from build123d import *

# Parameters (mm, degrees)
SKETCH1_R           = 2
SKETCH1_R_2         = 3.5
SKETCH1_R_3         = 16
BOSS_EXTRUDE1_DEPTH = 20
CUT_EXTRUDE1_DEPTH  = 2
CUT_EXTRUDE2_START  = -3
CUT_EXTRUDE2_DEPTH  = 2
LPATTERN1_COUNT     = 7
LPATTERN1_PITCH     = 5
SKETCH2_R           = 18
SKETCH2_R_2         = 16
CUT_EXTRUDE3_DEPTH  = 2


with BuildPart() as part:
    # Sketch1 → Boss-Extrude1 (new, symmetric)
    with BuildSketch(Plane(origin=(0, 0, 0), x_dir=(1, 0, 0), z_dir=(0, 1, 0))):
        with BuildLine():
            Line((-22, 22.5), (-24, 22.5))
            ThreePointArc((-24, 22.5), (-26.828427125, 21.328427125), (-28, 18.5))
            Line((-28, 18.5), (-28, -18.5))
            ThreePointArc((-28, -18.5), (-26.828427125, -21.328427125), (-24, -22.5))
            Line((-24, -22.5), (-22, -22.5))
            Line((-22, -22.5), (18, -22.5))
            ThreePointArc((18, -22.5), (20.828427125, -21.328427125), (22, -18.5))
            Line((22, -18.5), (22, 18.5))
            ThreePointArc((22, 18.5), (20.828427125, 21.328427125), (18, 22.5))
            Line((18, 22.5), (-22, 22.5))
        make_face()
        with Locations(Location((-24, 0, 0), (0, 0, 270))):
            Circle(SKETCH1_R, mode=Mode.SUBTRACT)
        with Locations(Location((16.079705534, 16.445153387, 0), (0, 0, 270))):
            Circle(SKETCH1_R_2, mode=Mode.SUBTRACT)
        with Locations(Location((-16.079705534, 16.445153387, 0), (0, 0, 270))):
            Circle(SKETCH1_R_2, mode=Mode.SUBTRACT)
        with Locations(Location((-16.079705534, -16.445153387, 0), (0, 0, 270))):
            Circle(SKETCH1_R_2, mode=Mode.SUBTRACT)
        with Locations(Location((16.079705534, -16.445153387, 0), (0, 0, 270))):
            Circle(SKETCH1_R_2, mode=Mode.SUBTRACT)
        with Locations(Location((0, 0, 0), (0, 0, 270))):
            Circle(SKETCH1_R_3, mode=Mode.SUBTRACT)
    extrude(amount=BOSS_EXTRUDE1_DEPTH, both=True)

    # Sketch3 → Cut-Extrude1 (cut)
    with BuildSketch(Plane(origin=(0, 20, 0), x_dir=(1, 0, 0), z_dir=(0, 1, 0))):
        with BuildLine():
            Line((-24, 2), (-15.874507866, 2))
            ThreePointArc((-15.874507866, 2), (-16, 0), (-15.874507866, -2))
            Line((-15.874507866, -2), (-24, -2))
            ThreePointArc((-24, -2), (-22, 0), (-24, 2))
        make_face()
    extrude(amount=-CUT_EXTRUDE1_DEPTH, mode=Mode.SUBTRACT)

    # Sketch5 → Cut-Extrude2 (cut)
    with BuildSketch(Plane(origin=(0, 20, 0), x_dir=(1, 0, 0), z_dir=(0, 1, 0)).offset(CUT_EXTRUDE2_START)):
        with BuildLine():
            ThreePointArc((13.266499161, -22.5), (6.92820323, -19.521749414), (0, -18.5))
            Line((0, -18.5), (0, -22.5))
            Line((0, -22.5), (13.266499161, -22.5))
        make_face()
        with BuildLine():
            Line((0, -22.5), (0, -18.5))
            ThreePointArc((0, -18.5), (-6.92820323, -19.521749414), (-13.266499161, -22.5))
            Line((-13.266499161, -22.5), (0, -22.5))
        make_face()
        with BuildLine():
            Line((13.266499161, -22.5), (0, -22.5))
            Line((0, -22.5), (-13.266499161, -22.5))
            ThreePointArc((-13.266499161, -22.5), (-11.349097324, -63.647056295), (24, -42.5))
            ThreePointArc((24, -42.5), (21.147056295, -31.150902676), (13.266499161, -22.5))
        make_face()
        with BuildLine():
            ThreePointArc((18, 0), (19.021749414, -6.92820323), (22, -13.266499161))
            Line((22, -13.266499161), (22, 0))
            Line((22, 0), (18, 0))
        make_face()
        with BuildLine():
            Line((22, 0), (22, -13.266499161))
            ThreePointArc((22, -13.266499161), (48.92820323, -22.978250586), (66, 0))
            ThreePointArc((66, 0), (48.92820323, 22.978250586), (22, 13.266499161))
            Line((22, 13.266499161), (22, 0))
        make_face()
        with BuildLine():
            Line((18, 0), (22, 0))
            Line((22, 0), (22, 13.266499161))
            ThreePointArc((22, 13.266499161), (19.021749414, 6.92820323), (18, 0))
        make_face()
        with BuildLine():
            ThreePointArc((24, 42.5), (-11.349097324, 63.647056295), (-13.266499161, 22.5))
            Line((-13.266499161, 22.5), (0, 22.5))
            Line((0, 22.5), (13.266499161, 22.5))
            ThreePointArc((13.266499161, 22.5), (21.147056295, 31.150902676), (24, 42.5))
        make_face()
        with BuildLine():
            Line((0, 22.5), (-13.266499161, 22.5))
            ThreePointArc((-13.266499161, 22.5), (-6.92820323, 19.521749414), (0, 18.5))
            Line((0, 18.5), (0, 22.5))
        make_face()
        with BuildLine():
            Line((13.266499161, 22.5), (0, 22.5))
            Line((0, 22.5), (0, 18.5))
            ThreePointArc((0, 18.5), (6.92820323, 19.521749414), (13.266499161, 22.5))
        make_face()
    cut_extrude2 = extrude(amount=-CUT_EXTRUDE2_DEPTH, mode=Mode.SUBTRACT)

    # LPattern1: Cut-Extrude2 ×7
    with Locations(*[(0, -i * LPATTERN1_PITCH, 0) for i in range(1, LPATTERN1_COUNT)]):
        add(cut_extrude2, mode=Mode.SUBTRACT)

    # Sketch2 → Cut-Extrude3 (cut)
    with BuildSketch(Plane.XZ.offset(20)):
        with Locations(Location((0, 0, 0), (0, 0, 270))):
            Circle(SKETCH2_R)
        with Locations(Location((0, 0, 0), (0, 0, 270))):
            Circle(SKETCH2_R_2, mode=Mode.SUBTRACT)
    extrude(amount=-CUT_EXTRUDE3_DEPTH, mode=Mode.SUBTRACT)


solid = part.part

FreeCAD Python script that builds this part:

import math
import FreeCAD as App
import Part
import Sketcher

V = App.Vector

doc = App.newDocument("Part")
body = doc.addObject("PartDesign::Body", "Body")

sketch1 = doc.addObject("Sketcher::SketchObject", "Sketch")
body.addObject(sketch1)
sketch1.AttachmentSupport = (doc.XZ_Plane, [""])
sketch1.MapMode = "FlatFace"
sketch1.addGeometry(Part.ArcOfCircle(Part.Circle(V(-24, -18.5, 0), V(0, 0, 1), 4), math.radians(180), math.radians(270)), False)
sketch1.addGeometry(Part.LineSegment(V(-28, -18.5, 0), V(-28, 18.5, 0)), False)
sketch1.addGeometry(Part.ArcOfCircle(Part.Circle(V(-24, 18.5, 0), V(0, 0, 1), 4), math.radians(90), math.radians(180)), False)
sketch1.addGeometry(Part.LineSegment(V(-24, 22.5, 0), V(18, 22.5, 0)), False)
sketch1.addGeometry(Part.ArcOfCircle(Part.Circle(V(18, 18.5, 0), V(0, 0, 1), 4), math.radians(0), math.radians(90)), False)
sketch1.addGeometry(Part.LineSegment(V(22, 18.5, 0), V(22, -18.5, 0)), False)
sketch1.addGeometry(Part.ArcOfCircle(Part.Circle(V(18, -18.5, 0), V(0, 0, 1), 4), math.radians(-90), math.radians(0)), False)
sketch1.addGeometry(Part.LineSegment(V(18, -22.5, 0), V(-24, -22.5, 0)), False)
sketch1.addGeometry(Part.Circle(V(-16.079706, 16.445153, 0), V(0, 0, 1), 3.5), False)
sketch1.addGeometry(Part.Circle(V(16.079706, 16.445153, 0), V(0, 0, 1), 3.5), False)
sketch1.addGeometry(Part.Circle(V(-24, 0, 0), V(0, 0, 1), 2), False)
sketch1.addGeometry(Part.Circle(V(-16.079706, -16.445153, 0), V(0, 0, 1), 3.5), False)
sketch1.addGeometry(Part.Circle(V(0, 0, 0), V(0, 0, 1), 16), False)
sketch1.addGeometry(Part.Circle(V(16.079706, -16.445153, 0), V(0, 0, 1), 3.5), False)
sketch1.addConstraint(Sketcher.Constraint("Tangent", 0, 1, 1, 1))
sketch1.addConstraint(Sketcher.Constraint("Tangent", 1, 2, 2, 2))
sketch1.addConstraint(Sketcher.Constraint("Tangent", 2, 1, 3, 1))
sketch1.addConstraint(Sketcher.Constraint("Tangent", 3, 2, 4, 2))
sketch1.addConstraint(Sketcher.Constraint("Tangent", 4, 1, 5, 1))
sketch1.addConstraint(Sketcher.Constraint("Tangent", 5, 2, 6, 2))
sketch1.addConstraint(Sketcher.Constraint("Tangent", 6, 1, 7, 1))
sketch1.addConstraint(Sketcher.Constraint("Tangent", 7, 2, 0, 2))
sketch1.addConstraint(Sketcher.Constraint("Vertical", 1))
sketch1.addConstraint(Sketcher.Constraint("Horizontal", 3))
sketch1.addConstraint(Sketcher.Constraint("Vertical", 5))
sketch1.addConstraint(Sketcher.Constraint("Horizontal", 7))
sketch1.addConstraint(Sketcher.Constraint("Coincident", 12, 3, -1, 1))
sketch1.addConstraint(Sketcher.Constraint("Equal", 0, 2))
sketch1.addConstraint(Sketcher.Constraint("Equal", 2, 4))
sketch1.addConstraint(Sketcher.Constraint("Equal", 4, 6))
sketch1.addConstraint(Sketcher.Constraint("Equal", 8, 9))
sketch1.addConstraint(Sketcher.Constraint("Equal", 9, 11))
sketch1.addConstraint(Sketcher.Constraint("Equal", 11, 13))
sketch1.addConstraint(Sketcher.Constraint("Symmetric", 9, 3, 11, 3, -1, 1))
sketch1.addConstraint(Sketcher.Constraint("Symmetric", 8, 3, 13, 3, -1, 1))
sketch1.addConstraint(Sketcher.Constraint("Symmetric", 8, 3, 9, 3, -2))
sketch1.addConstraint(Sketcher.Constraint("PointOnObject", 10, 3, -1))
sketch1.addConstraint(Sketcher.Constraint("Vertical", 2, 3, 10, 3))
sketch1.addConstraint(Sketcher.Constraint("Diameter", 8, 7.0))
sketch1.addConstraint(Sketcher.Constraint("Diameter", 10, 4.0))
sketch1.addConstraint(Sketcher.Constraint("Diameter", 12, 32.0))
sketch1.addConstraint(Sketcher.Constraint("Radius", 0, 4.0))
sketch1.addConstraint(Sketcher.Constraint("DistanceX", 3, 1, 3, 2, 42.0))
sketch1.addConstraint(Sketcher.Constraint("DistanceY", 1, 1, 1, 2, 37.0))
sketch1.addConstraint(Sketcher.Constraint("DistanceX", 0, 3, -1, 1, 24.0))
sketch1.addConstraint(Sketcher.Constraint("DistanceY", 0, 3, -1, 1, 18.5))
sketch1.addConstraint(Sketcher.Constraint("DistanceX", 8, 3, 9, 3, 32.159411))
sketch1.addConstraint(Sketcher.Constraint("DistanceY", -1, 1, 8, 3, 16.445153))
pad1 = doc.addObject("PartDesign::Pad", "Pad")
body.addObject(pad1)
pad1.Profile = sketch1
pad1.Length = 40
pad1.Midplane = True

sketch2 = doc.addObject("Sketcher::SketchObject", "Sketch001")
body.addObject(sketch2)
sketch2.AttachmentSupport = (doc.XZ_Plane, [""])
sketch2.MapMode = "FlatFace"
sketch2.AttachmentOffset = App.Placement(V(0, 0, -20), App.Rotation())
sketch2.addGeometry(Part.LineSegment(V(-15.874508, -2, 0), V(-24, -2, 0)), False)
sketch2.addGeometry(Part.ArcOfCircle(Part.Circle(V(-24, 0, 0), V(0, 0, 1), 2), math.radians(-90), math.radians(90)), False)
sketch2.addGeometry(Part.LineSegment(V(-24, 2, 0), V(-15.874508, 2, 0)), False)
sketch2.addGeometry(Part.ArcOfCircle(Part.Circle(V(0, 0, 0), V(0, 0, 1), 16), math.radians(172.819244), math.radians(187.180756)), False)
sketch2.addConstraint(Sketcher.Constraint("Tangent", 0, 2, 1, 1))
sketch2.addConstraint(Sketcher.Constraint("Tangent", 1, 2, 2, 1))
sketch2.addConstraint(Sketcher.Constraint("Coincident", 2, 2, 3, 1))
sketch2.addConstraint(Sketcher.Constraint("Coincident", 3, 2, 0, 1))
sketch2.addConstraint(Sketcher.Constraint("Horizontal", 0))
sketch2.addConstraint(Sketcher.Constraint("Horizontal", 2))
sketch2.addConstraint(Sketcher.Constraint("Coincident", 3, 3, -1, 1))
sketch2.addConstraint(Sketcher.Constraint("PointOnObject", 1, 3, -1))
sketch2.addConstraint(Sketcher.Constraint("Radius", 1, 2.0))
sketch2.addConstraint(Sketcher.Constraint("Radius", 3, 16.0))
sketch2.addConstraint(Sketcher.Constraint("DistanceX", 1, 3, -1, 1, 24.0))
pocket1 = doc.addObject("PartDesign::Pocket", "Pocket")
body.addObject(pocket1)
pocket1.Profile = sketch2
pocket1.Length = 2
pocket1.Reversed = True

sketch3 = doc.addObject("Sketcher::SketchObject", "Sketch002")
body.addObject(sketch3)
sketch3.AttachmentSupport = (doc.XZ_Plane, [""])
sketch3.MapMode = "FlatFace"
sketch3.AttachmentOffset = App.Placement(V(0, 0, -17), App.Rotation())
sketch3.addGeometry(Part.ArcOfCircle(Part.Circle(V(0, 42.5, 0), V(0, 0, 1), 24), math.radians(0), math.radians(236.44269)), False)
sketch3.addGeometry(Part.ArcOfCircle(Part.Circle(V(0, 42.5, 0), V(0, 0, 1), 24), math.radians(-56.44269), math.radians(0)), False)
sketch3.addGeometry(Part.ArcOfCircle(Part.Circle(V(0, 42.5, 0), V(0, 0, 1), 24), math.radians(-90), math.radians(-56.44269)), False)
sketch3.addGeometry(Part.ArcOfCircle(Part.Circle(V(0, 42.5, 0), V(0, 0, 1), 24), math.radians(-123.55731), math.radians(-90)), False)
sketch3.addGeometry(Part.ArcOfCircle(Part.Circle(V(42, 0, 0), V(0, 0, 1), 24), math.radians(-180), math.radians(-146.44269)), False)
sketch3.addGeometry(Part.ArcOfCircle(Part.Circle(V(42, 0, 0), V(0, 0, 1), 24), math.radians(146.44269), math.radians(180)), False)
sketch3.addGeometry(Part.ArcOfCircle(Part.Circle(V(42, 0, 0), V(0, 0, 1), 24), math.radians(0), math.radians(146.44269)), False)
sketch3.addGeometry(Part.ArcOfCircle(Part.Circle(V(42, 0, 0), V(0, 0, 1), 24), math.radians(-146.44269), math.radians(0)), False)
sketch3.addGeometry(Part.ArcOfCircle(Part.Circle(V(0, -42.5, 0), V(0, 0, 1), 24), math.radians(56.44269), math.radians(90)), False)
sketch3.addGeometry(Part.ArcOfCircle(Part.Circle(V(0, -42.5, 0), V(0, 0, 1), 24), math.radians(0), math.radians(56.44269)), False)
sketch3.addGeometry(Part.ArcOfCircle(Part.Circle(V(0, -42.5, 0), V(0, 0, 1), 24), math.radians(123.55731), math.radians(360)), False)
sketch3.addGeometry(Part.ArcOfCircle(Part.Circle(V(0, -42.5, 0), V(0, 0, 1), 24), math.radians(90), math.radians(123.55731)), False)
sketch3.addConstraint(Sketcher.Constraint("Tangent", 0, 1, 1, 2))
sketch3.addConstraint(Sketcher.Constraint("Tangent", 1, 1, 2, 2))
sketch3.addConstraint(Sketcher.Constraint("Tangent", 2, 1, 3, 2))
sketch3.addConstraint(Sketcher.Constraint("Tangent", 3, 1, 0, 2))
sketch3.addConstraint(Sketcher.Constraint("Tangent", 4, 1, 5, 2))
sketch3.addConstraint(Sketcher.Constraint("Tangent", 5, 1, 6, 2))
sketch3.addConstraint(Sketcher.Constraint("Tangent", 6, 1, 7, 2))
sketch3.addConstraint(Sketcher.Constraint("Tangent", 7, 1, 4, 2))
sketch3.addConstraint(Sketcher.Constraint("Tangent", 8, 1, 9, 2))
sketch3.addConstraint(Sketcher.Constraint("Tangent", 9, 1, 10, 2))
sketch3.addConstraint(Sketcher.Constraint("Tangent", 10, 1, 11, 2))
sketch3.addConstraint(Sketcher.Constraint("Tangent", 11, 1, 8, 2))
sketch3.addConstraint(Sketcher.Constraint("Equal", 0, 1))
sketch3.addConstraint(Sketcher.Constraint("Equal", 3, 4))
sketch3.addConstraint(Sketcher.Constraint("Equal", 4, 5))
sketch3.addConstraint(Sketcher.Constraint("Equal", 7, 8))
sketch3.addConstraint(Sketcher.Constraint("Equal", 8, 9))
sketch3.addConstraint(Sketcher.Constraint("Symmetric", 0, 3, 8, 3, -1, 1))
sketch3.addConstraint(Sketcher.Constraint("Symmetric", 1, 1, 3, 1, -2))
sketch3.addConstraint(Sketcher.Constraint("Symmetric", 5, 1, 7, 1, -1))
sketch3.addConstraint(Sketcher.Constraint("PointOnObject", 2, 1, -2))
sketch3.addConstraint(Sketcher.Constraint("PointOnObject", 4, 1, -1))
sketch3.addConstraint(Sketcher.Constraint("PointOnObject", 6, 1, -1))
sketch3.addConstraint(Sketcher.Constraint("PointOnObject", 11, 1, -2))
sketch3.addConstraint(Sketcher.Constraint("Horizontal", 3, 3, 0, 1))
sketch3.addConstraint(Sketcher.Constraint("Horizontal", 11, 3, 9, 1))
sketch3.addConstraint(Sketcher.Constraint("Horizontal", 8, 1, 10, 1))
sketch3.addConstraint(Sketcher.Constraint("Vertical", 1, 1, 8, 1))
sketch3.addConstraint(Sketcher.Constraint("Radius", 0, 24.0))
sketch3.addConstraint(Sketcher.Constraint("DistanceX", -1, 1, 4, 3, 42.0))
sketch3.addConstraint(Sketcher.Constraint("DistanceX", -1, 1, 5, 1, 22.0))
sketch3.addConstraint(Sketcher.Constraint("DistanceY", 8, 3, 1, 3, 85.0))
sketch3.addConstraint(Sketcher.Constraint("DistanceY", 1, 1, 0, 1, 20.0))
pocket2 = doc.addObject("PartDesign::Pocket", "Pocket001")
body.addObject(pocket2)
pocket2.Profile = sketch3
pocket2.Length = 2
pocket2.Reversed = True
doc.recompute()

linearpattern = doc.addObject("PartDesign::LinearPattern", "LinearPattern")
body.addObject(linearpattern)
linearpattern.Originals = [pocket2]
linearpattern.Direction = (doc.Y_Axis, [""])
linearpattern.Mode = "offset"
linearpattern.Offset = 5
linearpattern.Occurrences = 7
linearpattern.Reversed = True
body.Tip = linearpattern

sketch4 = doc.addObject("Sketcher::SketchObject", "Sketch003")
body.addObject(sketch4)
sketch4.AttachmentSupport = (doc.XZ_Plane, [""])
sketch4.MapMode = "FlatFace"
sketch4.AttachmentOffset = App.Placement(V(0, 0, 20), App.Rotation())
sketch4.addGeometry(Part.Circle(V(0, 0, 0), V(0, 0, 1), 18), False)
sketch4.addGeometry(Part.Circle(V(0, 0, 0), V(0, 0, 1), 16), False)
sketch4.addConstraint(Sketcher.Constraint("Coincident", 0, 3, -1, 1))
sketch4.addConstraint(Sketcher.Constraint("Coincident", 1, 3, -1, 1))
sketch4.addConstraint(Sketcher.Constraint("Diameter", 0, 36.0))
sketch4.addConstraint(Sketcher.Constraint("Diameter", 1, 32.0))
pocket3 = doc.addObject("PartDesign::Pocket", "Pocket002")
body.addObject(pocket3)
pocket3.Profile = sketch4
pocket3.Length = 2

doc.recompute()
